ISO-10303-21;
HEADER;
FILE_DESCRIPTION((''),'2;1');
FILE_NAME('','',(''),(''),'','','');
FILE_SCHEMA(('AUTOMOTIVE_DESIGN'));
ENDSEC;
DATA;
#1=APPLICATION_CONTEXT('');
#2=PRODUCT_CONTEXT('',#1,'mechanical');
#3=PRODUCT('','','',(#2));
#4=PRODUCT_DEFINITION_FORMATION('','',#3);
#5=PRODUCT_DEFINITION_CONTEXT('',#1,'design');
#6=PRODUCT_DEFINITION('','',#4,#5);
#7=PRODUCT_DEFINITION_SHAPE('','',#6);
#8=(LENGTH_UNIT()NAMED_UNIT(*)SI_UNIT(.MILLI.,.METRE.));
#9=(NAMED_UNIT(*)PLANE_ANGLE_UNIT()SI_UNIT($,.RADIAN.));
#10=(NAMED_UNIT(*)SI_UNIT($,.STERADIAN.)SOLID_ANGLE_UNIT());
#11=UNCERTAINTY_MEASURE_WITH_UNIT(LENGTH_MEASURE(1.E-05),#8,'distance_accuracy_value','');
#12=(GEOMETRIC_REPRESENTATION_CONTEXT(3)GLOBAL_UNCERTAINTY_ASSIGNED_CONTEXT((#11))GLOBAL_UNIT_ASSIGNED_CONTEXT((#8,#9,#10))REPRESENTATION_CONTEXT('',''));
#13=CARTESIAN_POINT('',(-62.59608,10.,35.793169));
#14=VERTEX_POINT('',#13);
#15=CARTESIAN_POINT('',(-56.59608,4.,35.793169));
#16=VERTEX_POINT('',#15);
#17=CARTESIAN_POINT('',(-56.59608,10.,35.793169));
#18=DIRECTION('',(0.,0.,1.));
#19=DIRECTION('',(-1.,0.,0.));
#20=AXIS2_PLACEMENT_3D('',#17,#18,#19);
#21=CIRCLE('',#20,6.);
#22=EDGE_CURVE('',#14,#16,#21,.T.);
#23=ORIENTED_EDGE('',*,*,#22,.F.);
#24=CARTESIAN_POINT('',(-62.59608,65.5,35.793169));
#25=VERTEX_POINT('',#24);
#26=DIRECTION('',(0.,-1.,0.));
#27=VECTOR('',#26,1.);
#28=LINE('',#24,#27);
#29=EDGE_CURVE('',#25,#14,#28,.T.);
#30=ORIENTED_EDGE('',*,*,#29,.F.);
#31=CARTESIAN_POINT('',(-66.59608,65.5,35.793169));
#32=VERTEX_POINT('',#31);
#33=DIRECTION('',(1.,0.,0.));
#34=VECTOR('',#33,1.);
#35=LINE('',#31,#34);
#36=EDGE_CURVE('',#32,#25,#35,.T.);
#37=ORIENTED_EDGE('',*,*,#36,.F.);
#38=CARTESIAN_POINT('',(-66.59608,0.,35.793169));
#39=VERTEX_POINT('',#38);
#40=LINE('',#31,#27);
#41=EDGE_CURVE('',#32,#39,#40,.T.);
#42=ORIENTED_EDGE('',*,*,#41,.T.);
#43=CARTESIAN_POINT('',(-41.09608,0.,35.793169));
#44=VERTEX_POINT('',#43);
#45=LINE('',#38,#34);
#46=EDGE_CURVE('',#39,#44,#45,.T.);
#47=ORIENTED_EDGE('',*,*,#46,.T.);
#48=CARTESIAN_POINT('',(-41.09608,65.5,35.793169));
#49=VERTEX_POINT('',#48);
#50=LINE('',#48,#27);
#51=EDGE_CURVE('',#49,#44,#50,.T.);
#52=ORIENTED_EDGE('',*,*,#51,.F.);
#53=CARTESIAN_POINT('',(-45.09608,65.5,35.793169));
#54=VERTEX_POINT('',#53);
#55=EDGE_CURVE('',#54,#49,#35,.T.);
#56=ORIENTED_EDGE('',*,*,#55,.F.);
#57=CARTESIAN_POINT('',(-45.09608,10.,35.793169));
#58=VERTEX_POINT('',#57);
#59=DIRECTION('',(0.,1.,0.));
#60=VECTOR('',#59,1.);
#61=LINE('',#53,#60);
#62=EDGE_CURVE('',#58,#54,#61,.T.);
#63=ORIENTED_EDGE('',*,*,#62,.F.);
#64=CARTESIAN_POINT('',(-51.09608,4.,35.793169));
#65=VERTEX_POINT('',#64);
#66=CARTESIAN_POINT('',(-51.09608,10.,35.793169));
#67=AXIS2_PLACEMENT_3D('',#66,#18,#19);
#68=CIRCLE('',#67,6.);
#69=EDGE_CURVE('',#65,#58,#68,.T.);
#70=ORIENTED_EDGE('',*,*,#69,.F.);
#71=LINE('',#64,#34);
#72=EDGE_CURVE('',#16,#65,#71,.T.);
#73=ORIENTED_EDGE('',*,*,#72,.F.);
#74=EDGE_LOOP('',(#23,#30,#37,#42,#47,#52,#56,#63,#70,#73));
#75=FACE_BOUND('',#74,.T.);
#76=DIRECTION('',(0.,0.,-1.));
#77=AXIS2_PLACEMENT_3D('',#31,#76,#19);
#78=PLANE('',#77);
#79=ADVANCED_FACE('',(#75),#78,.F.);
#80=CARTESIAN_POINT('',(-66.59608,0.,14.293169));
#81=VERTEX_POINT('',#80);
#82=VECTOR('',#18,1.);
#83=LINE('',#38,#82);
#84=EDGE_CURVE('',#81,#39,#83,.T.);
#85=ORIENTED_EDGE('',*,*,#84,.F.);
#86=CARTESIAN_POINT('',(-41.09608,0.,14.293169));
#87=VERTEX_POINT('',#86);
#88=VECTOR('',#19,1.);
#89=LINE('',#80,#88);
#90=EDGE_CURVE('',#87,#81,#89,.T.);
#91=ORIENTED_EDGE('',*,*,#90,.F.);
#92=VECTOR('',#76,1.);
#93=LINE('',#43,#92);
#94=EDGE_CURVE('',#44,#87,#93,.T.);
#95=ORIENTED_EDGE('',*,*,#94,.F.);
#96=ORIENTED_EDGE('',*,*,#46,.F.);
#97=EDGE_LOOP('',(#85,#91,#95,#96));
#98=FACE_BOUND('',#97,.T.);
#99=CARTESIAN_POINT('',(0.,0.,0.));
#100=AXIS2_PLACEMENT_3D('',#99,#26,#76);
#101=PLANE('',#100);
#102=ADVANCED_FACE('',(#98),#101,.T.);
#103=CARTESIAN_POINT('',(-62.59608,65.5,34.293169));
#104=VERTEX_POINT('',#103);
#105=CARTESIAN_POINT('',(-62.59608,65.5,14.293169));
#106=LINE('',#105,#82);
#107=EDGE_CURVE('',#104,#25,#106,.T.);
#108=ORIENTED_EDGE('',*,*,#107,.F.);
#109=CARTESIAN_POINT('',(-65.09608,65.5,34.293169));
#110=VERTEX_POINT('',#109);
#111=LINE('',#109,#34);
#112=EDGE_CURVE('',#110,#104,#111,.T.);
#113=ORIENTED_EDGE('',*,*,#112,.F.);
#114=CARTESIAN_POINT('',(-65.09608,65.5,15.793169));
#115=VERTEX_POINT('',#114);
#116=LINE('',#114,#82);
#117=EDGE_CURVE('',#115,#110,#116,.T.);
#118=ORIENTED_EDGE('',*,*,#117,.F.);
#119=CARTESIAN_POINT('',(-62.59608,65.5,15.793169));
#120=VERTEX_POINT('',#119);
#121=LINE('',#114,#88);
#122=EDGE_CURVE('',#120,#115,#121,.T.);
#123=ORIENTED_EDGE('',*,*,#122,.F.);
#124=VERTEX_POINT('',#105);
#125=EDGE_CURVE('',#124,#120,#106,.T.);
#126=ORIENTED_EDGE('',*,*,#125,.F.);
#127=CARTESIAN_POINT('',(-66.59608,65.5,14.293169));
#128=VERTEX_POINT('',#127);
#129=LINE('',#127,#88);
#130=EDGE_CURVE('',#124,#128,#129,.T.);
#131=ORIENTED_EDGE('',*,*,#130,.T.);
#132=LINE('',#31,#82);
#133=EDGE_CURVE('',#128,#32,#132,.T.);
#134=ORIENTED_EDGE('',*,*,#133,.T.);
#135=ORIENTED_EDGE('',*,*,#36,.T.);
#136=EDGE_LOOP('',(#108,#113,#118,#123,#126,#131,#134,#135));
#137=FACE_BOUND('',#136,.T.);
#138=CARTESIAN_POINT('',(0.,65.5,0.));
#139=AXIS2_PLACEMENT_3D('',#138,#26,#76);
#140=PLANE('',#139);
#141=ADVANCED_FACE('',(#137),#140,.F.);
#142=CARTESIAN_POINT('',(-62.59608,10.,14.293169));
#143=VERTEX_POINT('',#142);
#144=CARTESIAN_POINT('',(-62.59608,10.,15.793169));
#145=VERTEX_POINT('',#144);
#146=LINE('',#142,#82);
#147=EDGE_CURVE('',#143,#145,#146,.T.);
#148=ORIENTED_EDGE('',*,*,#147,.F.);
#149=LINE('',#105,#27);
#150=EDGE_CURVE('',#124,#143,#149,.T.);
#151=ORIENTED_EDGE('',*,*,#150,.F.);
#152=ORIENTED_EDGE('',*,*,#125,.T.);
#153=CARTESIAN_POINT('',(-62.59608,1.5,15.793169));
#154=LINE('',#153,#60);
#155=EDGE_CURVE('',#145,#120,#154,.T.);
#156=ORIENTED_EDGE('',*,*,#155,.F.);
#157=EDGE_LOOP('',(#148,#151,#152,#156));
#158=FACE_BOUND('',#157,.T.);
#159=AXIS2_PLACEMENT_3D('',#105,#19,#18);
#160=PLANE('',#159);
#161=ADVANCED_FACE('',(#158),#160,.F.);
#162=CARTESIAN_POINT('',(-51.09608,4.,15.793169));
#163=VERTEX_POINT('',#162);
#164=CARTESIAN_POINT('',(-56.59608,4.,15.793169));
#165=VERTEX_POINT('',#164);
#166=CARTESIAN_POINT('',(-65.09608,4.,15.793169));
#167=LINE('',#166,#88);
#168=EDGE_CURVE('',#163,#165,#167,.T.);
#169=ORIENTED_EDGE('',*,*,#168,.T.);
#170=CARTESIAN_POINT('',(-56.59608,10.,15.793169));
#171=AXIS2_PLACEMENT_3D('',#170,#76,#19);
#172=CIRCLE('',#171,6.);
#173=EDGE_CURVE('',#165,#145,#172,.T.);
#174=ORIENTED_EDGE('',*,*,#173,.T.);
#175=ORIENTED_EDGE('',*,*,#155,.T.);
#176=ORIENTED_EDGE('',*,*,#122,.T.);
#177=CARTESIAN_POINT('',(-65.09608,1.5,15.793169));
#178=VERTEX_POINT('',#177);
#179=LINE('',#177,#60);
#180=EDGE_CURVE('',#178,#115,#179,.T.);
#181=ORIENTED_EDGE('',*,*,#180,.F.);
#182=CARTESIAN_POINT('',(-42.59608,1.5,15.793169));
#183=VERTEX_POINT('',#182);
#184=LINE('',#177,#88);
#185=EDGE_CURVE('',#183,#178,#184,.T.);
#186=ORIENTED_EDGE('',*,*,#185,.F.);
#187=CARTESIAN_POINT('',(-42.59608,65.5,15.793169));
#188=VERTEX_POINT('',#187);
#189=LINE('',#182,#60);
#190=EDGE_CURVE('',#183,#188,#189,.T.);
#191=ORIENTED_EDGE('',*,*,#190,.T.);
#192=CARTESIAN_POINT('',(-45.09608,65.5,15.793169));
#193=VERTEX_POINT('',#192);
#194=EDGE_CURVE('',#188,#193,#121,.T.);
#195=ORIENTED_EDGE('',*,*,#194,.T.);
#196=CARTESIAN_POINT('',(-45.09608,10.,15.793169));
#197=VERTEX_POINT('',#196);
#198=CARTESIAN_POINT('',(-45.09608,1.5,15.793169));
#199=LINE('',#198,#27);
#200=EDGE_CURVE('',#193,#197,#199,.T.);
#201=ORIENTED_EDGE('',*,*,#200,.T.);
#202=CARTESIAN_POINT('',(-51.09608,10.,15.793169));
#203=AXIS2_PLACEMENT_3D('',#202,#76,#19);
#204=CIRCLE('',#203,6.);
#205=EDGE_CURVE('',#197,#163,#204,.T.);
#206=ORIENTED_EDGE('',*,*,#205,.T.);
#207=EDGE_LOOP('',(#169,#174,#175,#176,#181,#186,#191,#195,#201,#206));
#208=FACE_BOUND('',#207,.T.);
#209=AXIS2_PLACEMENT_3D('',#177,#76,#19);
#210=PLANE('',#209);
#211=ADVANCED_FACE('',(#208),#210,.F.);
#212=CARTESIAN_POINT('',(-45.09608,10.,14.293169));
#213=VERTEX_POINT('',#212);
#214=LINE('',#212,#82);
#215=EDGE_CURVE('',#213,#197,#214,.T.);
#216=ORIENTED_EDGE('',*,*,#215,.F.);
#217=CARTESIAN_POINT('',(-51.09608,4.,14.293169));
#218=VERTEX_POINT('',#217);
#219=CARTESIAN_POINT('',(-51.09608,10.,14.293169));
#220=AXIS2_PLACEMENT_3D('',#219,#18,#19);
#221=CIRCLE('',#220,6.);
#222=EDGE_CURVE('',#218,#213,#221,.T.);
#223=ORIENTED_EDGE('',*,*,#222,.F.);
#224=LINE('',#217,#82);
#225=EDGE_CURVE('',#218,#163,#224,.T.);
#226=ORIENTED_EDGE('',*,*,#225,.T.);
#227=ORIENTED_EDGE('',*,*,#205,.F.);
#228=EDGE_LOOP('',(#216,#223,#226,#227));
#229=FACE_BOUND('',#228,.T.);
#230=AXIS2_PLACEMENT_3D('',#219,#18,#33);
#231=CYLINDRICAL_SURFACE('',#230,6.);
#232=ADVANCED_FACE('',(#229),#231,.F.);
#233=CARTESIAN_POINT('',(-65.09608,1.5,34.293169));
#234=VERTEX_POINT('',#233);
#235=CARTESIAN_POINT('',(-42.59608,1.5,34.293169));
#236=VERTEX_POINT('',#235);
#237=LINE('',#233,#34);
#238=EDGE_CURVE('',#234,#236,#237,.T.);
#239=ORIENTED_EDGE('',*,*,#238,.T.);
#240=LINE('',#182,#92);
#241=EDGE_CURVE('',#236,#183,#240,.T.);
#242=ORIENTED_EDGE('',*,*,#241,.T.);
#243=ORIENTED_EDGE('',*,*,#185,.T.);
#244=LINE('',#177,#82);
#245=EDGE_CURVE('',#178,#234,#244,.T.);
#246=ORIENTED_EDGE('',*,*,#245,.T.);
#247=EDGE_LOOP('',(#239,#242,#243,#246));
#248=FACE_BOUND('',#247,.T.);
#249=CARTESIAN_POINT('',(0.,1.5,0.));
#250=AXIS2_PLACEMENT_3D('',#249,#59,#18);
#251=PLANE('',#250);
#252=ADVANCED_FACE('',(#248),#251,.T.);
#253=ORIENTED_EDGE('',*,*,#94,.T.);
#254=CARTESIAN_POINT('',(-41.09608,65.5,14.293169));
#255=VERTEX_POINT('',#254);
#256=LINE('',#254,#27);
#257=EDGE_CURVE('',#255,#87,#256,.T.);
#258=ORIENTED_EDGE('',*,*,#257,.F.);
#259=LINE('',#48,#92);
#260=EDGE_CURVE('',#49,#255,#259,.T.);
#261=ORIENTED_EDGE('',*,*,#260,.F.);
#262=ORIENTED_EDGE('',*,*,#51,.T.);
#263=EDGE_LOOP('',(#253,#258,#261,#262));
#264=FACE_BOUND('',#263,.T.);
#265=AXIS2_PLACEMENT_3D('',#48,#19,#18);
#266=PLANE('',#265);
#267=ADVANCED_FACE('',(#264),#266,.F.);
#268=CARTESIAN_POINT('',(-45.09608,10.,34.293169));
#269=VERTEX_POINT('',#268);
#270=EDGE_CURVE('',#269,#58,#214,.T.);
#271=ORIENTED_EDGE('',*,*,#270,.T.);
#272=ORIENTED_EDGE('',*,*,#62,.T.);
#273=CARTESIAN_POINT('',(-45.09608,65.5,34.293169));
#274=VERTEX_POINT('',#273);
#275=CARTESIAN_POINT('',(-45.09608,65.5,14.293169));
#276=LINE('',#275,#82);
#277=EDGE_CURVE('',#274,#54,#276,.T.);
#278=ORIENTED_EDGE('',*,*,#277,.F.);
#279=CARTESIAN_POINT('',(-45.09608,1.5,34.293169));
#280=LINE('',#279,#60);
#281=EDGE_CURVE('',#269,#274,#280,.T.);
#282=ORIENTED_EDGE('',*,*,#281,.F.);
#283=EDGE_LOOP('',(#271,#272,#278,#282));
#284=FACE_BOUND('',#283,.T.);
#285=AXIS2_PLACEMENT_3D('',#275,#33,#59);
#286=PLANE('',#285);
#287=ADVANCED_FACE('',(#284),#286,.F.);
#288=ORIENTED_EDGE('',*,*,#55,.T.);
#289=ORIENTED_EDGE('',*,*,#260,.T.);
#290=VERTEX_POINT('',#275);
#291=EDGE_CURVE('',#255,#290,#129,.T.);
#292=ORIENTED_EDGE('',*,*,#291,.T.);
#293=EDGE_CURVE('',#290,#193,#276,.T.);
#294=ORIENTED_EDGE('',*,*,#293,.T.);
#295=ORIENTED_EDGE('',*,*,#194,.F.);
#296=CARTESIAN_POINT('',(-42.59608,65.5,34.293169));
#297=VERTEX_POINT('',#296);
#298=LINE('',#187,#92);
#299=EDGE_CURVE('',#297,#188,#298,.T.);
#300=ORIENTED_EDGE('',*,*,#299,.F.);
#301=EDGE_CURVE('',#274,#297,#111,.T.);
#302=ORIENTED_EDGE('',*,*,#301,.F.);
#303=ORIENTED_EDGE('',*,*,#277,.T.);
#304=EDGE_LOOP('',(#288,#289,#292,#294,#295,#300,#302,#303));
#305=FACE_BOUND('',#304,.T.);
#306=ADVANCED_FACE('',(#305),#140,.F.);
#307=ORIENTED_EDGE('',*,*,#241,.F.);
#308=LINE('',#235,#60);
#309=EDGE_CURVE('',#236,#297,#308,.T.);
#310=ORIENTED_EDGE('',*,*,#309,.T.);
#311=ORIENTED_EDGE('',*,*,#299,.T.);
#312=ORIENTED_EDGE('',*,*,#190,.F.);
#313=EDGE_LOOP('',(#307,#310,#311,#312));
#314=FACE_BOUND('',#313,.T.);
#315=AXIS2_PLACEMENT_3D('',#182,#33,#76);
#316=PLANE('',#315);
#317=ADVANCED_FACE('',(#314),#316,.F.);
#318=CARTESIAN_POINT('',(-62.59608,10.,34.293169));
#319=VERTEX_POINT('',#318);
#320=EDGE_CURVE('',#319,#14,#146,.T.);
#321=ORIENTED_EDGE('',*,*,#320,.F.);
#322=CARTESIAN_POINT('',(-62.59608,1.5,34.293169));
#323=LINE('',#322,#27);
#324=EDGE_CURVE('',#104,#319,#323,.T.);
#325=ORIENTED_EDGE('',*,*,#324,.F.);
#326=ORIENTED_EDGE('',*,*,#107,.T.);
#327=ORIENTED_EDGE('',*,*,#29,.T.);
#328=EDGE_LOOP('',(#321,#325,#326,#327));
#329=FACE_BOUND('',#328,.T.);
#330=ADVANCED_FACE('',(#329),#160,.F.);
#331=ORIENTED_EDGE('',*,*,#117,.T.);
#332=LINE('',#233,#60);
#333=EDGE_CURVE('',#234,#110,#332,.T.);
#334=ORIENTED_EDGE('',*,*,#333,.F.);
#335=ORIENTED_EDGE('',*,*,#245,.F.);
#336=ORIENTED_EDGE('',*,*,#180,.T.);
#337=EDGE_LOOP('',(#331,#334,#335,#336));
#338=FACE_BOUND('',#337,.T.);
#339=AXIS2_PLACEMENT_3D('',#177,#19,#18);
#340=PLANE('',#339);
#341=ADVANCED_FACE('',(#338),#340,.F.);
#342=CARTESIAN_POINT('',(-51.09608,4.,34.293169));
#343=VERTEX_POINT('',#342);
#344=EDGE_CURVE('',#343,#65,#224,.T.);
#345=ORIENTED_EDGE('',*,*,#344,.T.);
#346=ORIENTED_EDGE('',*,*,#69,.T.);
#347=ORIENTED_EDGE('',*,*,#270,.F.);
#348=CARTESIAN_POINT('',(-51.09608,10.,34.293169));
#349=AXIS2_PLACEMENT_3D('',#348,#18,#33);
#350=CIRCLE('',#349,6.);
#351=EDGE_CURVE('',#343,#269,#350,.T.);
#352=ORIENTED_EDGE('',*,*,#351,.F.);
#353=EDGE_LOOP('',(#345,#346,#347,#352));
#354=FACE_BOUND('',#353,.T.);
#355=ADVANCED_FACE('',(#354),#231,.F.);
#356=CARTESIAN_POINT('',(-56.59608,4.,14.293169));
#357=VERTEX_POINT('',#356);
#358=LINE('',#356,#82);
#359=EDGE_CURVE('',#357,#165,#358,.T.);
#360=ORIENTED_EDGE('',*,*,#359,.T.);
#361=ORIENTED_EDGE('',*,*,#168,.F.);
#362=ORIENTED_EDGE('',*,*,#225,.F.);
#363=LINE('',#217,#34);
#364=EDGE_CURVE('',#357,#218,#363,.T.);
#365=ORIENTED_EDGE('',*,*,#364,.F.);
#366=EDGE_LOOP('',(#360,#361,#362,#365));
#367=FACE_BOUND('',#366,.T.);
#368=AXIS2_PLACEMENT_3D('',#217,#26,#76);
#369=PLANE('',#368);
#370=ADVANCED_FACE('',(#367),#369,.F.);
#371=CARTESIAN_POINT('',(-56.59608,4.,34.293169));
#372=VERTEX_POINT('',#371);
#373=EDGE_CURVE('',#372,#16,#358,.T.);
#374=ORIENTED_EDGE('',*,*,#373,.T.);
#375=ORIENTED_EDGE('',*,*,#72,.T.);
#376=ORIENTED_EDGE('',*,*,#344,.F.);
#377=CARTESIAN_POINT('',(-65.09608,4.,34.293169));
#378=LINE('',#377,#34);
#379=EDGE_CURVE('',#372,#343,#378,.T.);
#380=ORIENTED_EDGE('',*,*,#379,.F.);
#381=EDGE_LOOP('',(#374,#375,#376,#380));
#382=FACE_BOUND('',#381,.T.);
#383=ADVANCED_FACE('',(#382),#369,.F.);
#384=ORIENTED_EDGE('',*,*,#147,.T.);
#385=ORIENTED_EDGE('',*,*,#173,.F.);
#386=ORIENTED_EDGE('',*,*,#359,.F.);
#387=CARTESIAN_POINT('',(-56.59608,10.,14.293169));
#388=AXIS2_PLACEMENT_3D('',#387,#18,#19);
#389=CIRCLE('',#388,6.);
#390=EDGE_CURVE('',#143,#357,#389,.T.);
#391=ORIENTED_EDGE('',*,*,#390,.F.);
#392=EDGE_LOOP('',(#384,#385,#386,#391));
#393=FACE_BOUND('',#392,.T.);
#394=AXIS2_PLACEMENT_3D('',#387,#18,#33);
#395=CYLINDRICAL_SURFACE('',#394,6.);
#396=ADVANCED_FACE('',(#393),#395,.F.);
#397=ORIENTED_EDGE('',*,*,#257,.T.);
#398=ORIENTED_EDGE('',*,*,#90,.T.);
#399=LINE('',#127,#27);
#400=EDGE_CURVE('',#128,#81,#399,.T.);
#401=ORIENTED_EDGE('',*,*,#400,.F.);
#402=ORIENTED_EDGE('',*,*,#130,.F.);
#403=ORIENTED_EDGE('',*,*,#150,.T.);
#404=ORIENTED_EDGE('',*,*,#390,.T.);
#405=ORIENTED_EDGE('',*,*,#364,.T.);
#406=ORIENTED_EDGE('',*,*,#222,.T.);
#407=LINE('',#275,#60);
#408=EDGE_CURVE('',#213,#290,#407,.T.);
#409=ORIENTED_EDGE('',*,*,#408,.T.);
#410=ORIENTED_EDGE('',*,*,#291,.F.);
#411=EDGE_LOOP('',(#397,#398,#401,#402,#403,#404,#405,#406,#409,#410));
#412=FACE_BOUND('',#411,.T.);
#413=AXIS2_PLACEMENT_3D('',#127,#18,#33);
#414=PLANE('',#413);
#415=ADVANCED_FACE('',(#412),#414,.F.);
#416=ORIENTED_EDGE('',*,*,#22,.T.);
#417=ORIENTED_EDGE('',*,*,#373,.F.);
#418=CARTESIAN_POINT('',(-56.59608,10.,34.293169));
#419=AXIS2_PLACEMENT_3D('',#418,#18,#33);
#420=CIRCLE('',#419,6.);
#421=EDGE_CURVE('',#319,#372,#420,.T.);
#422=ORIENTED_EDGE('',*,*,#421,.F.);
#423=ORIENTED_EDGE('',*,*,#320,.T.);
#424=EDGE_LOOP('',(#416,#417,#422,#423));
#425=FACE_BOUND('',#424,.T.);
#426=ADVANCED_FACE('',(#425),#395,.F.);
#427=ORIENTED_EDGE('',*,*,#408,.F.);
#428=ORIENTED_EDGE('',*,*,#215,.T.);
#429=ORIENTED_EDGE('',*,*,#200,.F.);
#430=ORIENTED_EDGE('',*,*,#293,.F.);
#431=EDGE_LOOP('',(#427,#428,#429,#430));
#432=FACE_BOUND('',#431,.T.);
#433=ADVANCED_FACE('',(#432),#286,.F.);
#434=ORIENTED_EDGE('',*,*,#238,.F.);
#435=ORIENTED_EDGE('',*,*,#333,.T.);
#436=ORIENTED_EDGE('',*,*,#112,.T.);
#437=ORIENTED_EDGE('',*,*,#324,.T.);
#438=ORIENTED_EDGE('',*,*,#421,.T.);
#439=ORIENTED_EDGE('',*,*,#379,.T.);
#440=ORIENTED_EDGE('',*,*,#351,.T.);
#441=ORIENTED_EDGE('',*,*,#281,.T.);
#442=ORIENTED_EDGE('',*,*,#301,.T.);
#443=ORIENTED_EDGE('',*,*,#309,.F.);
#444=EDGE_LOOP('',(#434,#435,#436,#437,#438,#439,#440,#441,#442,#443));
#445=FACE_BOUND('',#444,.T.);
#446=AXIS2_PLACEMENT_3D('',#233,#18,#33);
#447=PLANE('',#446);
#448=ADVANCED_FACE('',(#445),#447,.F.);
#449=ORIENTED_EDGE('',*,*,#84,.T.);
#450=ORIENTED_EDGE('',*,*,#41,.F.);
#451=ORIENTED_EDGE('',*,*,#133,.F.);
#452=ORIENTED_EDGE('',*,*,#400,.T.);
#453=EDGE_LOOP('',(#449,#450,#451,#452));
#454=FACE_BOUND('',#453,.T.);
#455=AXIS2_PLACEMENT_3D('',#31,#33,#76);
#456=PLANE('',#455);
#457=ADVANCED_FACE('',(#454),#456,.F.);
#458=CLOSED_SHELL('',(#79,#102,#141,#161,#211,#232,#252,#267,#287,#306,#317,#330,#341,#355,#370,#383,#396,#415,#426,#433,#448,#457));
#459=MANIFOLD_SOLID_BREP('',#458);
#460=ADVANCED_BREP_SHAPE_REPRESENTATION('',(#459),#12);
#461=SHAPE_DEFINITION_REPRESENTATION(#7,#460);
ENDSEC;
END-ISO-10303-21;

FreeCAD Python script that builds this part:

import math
import FreeCAD as App
import Part
import Sketcher

V = App.Vector
Q = App.Units.Quantity

doc = App.newDocument("Part")
body = doc.addObject("PartDesign::Body", "Body")

sketch1 = body.newObject("Sketcher::SketchObject", "Sketch")
sketch1.AttachmentSupport = (doc.getObject("XZ_Plane"), [""])
sketch1.MapMode = "FlatFace"
sketch1.addGeometry(Part.LineSegment(V(-67, 14, 0), V(-67, 36, 0)), False)
sketch1.addGeometry(Part.LineSegment(V(-67, 36, 0), V(-41, 36, 0)), False)
sketch1.addGeometry(Part.LineSegment(V(-41, 36, 0), V(-41, 14, 0)), False)
sketch1.addGeometry(Part.LineSegment(V(-41, 14, 0), V(-67, 14, 0)), False)
sketch1.addConstraint(Sketcher.Constraint("Coincident", 0, 2, 1, 1))
sketch1.addConstraint(Sketcher.Constraint("Coincident", 1, 2, 2, 1))
sketch1.addConstraint(Sketcher.Constraint("Coincident", 2, 2, 3, 1))
sketch1.addConstraint(Sketcher.Constraint("Coincident", 3, 2, 0, 1))
sketch1.addConstraint(Sketcher.Constraint("Vertical", 0))
sketch1.addConstraint(Sketcher.Constraint("Horizontal", 1))
sketch1.addConstraint(Sketcher.Constraint("Vertical", 2))
sketch1.addConstraint(Sketcher.Constraint("Horizontal", 3))
sketch1.addConstraint(Sketcher.Constraint("DistanceX", 1, 1, 1, 2, Q("25.5 mm")))
sketch1.addConstraint(Sketcher.Constraint("DistanceY", 0, 1, 0, 2, Q("21.5 mm")))
sketch1.addConstraint(Sketcher.Constraint("DistanceX", 0, 2, -1, 1, Q("66.59608 mm")))
sketch1.addConstraint(Sketcher.Constraint("DistanceY", -1, 1, 0, 2, Q("35.793169 mm")))
pad1 = body.newObject("PartDesign::Pad", "Pad")
pad1.Profile = sketch1
pad1.Length = 65.5
pad1.Reversed = True

sketch2 = body.newObject("Sketcher::SketchObject", "Sketch001")
sketch2.AttachmentSupport = (doc.getObject("XZ_Plane"), [""])
sketch2.MapMode = "FlatFace"
sketch2.AttachmentOffset = App.Placement(V(0, 0, -65.5), App.Rotation())
sketch2.addGeometry(Part.LineSegment(V(-65, 16, 0), V(-65, 34, 0)), False)
sketch2.addGeometry(Part.LineSegment(V(-65, 34, 0), V(-43, 34, 0)), False)
sketch2.addGeometry(Part.LineSegment(V(-43, 34, 0), V(-43, 16, 0)), False)
sketch2.addGeometry(Part.LineSegment(V(-43, 16, 0), V(-65, 16, 0)), False)
sketch2.addConstraint(Sketcher.Constraint("Coincident", 0, 2, 1, 1))
sketch2.addConstraint(Sketcher.Constraint("Coincident", 1, 2, 2, 1))
sketch2.addConstraint(Sketcher.Constraint("Coincident", 2, 2, 3, 1))
sketch2.addConstraint(Sketcher.Constraint("Coincident", 3, 2, 0, 1))
sketch2.addConstraint(Sketcher.Constraint("Vertical", 0))
sketch2.addConstraint(Sketcher.Constraint("Horizontal", 1))
sketch2.addConstraint(Sketcher.Constraint("Vertical", 2))
sketch2.addConstraint(Sketcher.Constraint("Horizontal", 3))
sketch2.addConstraint(Sketcher.Constraint("DistanceX", 1, 1, 1, 2, Q("22.5 mm")))
sketch2.addConstraint(Sketcher.Constraint("DistanceY", 0, 1, 0, 2, Q("18.5 mm")))
sketch2.addConstraint(Sketcher.Constraint("DistanceX", 0, 2, -1, 1, Q("65.09608 mm")))
sketch2.addConstraint(Sketcher.Constraint("DistanceY", -1, 1, 0, 2, Q("34.293169 mm")))
pocket1 = body.newObject("PartDesign::Pocket", "Pocket")
pocket1.Profile = sketch2
pocket1.Length = 64
pocket1.Reversed = True

sketch3 = body.newObject("Sketcher::SketchObject", "Sketch002")
sketch3.AttachmentSupport = (doc.getObject("XY_Plane"), [""])
sketch3.MapMode = "FlatFace"
sketch3.AttachmentOffset = App.Placement(V(0, 0, 35.793169), App.Rotation())
sketch3.addGeometry(Part.LineSegment(V(-45, 66, 0), V(-63, 66, 0)), False)
sketch3.addGeometry(Part.LineSegment(V(-63, 66, 0), V(-63, 10, 0)), False)
sketch3.addGeometry(Part.ArcOfCircle(Part.Circle(V(-57, 10, 0), V(0, 0, 1), 6), math.radians(180), math.radians(270)), False)
sketch3.addGeometry(Part.LineSegment(V(-57, 4, 0), V(-51, 4, 0)), False)
sketch3.addGeometry(Part.ArcOfCircle(Part.Circle(V(-51, 10, 0), V(0, 0, 1), 6), math.radians(-90), math.radians(0)), False)
sketch3.addGeometry(Part.LineSegment(V(-45, 10, 0), V(-45, 66, 0)), False)
sketch3.addConstraint(Sketcher.Constraint("Coincident", 0, 2, 1, 1))
sketch3.addConstraint(Sketcher.Constraint("Tangent", 1, 2, 2, 1))
sketch3.addConstraint(Sketcher.Constraint("Tangent", 2, 2, 3, 1))
sketch3.addConstraint(Sketcher.Constraint("Tangent", 3, 2, 4, 1))
sketch3.addConstraint(Sketcher.Constraint("Tangent", 4, 2, 5, 1))
sketch3.addConstraint(Sketcher.Constraint("Coincident", 5, 2, 0, 1))
sketch3.addConstraint(Sketcher.Constraint("Horizontal", 0))
sketch3.addConstraint(Sketcher.Constraint("Vertical", 1))
sketch3.addConstraint(Sketcher.Constraint("Horizontal", 3))
sketch3.addConstraint(Sketcher.Constraint("Vertical", 5))
sketch3.addConstraint(Sketcher.Constraint("Equal", 2, 4))
sketch3.addConstraint(Sketcher.Constraint("Radius", 2, Q("6 mm")))
sketch3.addConstraint(Sketcher.Constraint("DistanceX", 0, 2, 0, 1, Q("17.5 mm")))
sketch3.addConstraint(Sketcher.Constraint("DistanceY", 1, 2, 1, 1, Q("55.5 mm")))
sketch3.addConstraint(Sketcher.Constraint("DistanceY", -1, 1, 2, 3, Q("10 mm")))
sketch3.addConstraint(Sketcher.Constraint("DistanceX", 2, 3, -1, 1, Q("56.59608 mm")))
pocket2 = body.newObject("PartDesign::Pocket", "Pocket001")
pocket2.Profile = sketch3
pocket2.Length = 21.5

doc.recompute()
